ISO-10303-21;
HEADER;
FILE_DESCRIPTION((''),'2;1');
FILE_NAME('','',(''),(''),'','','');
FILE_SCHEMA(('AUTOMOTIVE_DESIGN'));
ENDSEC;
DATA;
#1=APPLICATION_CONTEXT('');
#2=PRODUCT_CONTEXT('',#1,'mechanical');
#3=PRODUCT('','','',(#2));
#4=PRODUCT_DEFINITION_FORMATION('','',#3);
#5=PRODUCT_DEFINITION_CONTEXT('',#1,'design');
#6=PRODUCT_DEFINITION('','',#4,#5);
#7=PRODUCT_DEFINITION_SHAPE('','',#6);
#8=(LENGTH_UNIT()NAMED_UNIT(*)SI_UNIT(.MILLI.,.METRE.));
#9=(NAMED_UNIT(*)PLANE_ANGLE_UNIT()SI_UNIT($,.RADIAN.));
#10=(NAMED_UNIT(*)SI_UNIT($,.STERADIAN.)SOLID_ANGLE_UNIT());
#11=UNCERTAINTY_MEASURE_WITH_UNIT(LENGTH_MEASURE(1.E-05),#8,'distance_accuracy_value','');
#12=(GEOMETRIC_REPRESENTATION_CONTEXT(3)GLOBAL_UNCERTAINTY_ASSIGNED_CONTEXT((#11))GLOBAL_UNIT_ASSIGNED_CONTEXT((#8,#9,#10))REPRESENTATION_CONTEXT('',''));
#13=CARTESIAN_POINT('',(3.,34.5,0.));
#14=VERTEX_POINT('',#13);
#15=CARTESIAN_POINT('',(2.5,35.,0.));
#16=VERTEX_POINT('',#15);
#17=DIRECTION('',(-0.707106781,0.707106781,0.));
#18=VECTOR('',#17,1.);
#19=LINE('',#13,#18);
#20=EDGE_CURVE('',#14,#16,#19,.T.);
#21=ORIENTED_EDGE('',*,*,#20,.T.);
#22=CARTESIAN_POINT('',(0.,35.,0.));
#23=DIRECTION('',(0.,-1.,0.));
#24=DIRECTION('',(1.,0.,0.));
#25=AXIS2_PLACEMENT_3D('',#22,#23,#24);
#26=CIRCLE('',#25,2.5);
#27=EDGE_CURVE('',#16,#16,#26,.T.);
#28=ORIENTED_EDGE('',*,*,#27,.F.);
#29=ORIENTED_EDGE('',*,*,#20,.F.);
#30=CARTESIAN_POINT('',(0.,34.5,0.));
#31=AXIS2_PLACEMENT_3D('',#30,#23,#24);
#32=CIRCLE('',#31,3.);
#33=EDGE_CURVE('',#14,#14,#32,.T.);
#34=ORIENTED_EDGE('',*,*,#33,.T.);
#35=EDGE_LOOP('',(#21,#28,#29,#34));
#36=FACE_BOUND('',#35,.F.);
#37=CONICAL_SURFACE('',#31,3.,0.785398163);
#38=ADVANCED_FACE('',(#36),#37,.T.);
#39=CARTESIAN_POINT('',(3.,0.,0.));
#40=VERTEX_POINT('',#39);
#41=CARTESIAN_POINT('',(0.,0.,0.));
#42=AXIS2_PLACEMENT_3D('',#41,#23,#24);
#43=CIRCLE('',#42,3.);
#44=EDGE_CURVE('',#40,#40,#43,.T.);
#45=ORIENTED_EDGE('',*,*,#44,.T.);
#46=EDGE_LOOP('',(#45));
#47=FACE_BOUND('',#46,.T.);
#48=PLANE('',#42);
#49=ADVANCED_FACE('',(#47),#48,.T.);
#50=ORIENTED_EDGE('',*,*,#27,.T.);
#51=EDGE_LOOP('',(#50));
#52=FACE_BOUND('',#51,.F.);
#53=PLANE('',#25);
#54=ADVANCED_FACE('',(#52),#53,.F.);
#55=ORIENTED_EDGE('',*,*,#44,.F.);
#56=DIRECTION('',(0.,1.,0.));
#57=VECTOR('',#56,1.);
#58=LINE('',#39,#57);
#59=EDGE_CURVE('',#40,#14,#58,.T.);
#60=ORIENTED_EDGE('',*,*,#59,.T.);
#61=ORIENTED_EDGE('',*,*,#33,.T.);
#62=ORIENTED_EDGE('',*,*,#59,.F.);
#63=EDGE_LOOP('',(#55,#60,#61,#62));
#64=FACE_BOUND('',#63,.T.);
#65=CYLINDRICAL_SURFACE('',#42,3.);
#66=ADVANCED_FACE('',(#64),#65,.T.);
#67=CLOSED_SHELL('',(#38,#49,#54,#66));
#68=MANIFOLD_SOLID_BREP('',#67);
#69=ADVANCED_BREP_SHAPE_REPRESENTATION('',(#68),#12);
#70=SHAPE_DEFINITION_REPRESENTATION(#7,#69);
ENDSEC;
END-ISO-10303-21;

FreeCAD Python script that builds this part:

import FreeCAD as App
import Part
import Sketcher
Q = App.Units.Quantity


def edges_at(feature, points):
    """Names of the edges that pass closest to the given points."""
    edges = feature.Shape.Edges
    near = lambda p: min(range(len(edges)), key=lambda i: edges[i].distToShape(Part.Vertex(*p))[0])
    return sorted({f"Edge{near(p) + 1}" for p in points})

doc = App.newDocument("Part")
body = doc.addObject("PartDesign::Body", "Body")

# Sketch on XZ plane
sketch1 = body.newObject("Sketcher::SketchObject", "Sketch")
sketch1.AttachmentSupport = (doc.getObject("XZ_Plane"), [""])
sketch1.MapMode = "FlatFace"
sketch1.addGeometry(Part.Circle(App.Vector(0, 0, 0), App.Vector(0, 0, 1), 3), False)
sketch1.addConstraint([
    Sketcher.Constraint("Coincident", 0, 3, -1, 1),
    Sketcher.Constraint("Diameter", 0, Q("6 mm")),
])
pad1 = body.newObject("PartDesign::Pad", "Pad")
pad1.Profile = sketch1
pad1.Length = 35
pad1.Reversed = True
doc.recompute()

chamfer = body.newObject("PartDesign::Chamfer", "Chamfer")
chamfer.Base = (pad1, edges_at(pad1, [(-3, 35, 0)]))
chamfer.Size = 0.5

doc.recompute()
